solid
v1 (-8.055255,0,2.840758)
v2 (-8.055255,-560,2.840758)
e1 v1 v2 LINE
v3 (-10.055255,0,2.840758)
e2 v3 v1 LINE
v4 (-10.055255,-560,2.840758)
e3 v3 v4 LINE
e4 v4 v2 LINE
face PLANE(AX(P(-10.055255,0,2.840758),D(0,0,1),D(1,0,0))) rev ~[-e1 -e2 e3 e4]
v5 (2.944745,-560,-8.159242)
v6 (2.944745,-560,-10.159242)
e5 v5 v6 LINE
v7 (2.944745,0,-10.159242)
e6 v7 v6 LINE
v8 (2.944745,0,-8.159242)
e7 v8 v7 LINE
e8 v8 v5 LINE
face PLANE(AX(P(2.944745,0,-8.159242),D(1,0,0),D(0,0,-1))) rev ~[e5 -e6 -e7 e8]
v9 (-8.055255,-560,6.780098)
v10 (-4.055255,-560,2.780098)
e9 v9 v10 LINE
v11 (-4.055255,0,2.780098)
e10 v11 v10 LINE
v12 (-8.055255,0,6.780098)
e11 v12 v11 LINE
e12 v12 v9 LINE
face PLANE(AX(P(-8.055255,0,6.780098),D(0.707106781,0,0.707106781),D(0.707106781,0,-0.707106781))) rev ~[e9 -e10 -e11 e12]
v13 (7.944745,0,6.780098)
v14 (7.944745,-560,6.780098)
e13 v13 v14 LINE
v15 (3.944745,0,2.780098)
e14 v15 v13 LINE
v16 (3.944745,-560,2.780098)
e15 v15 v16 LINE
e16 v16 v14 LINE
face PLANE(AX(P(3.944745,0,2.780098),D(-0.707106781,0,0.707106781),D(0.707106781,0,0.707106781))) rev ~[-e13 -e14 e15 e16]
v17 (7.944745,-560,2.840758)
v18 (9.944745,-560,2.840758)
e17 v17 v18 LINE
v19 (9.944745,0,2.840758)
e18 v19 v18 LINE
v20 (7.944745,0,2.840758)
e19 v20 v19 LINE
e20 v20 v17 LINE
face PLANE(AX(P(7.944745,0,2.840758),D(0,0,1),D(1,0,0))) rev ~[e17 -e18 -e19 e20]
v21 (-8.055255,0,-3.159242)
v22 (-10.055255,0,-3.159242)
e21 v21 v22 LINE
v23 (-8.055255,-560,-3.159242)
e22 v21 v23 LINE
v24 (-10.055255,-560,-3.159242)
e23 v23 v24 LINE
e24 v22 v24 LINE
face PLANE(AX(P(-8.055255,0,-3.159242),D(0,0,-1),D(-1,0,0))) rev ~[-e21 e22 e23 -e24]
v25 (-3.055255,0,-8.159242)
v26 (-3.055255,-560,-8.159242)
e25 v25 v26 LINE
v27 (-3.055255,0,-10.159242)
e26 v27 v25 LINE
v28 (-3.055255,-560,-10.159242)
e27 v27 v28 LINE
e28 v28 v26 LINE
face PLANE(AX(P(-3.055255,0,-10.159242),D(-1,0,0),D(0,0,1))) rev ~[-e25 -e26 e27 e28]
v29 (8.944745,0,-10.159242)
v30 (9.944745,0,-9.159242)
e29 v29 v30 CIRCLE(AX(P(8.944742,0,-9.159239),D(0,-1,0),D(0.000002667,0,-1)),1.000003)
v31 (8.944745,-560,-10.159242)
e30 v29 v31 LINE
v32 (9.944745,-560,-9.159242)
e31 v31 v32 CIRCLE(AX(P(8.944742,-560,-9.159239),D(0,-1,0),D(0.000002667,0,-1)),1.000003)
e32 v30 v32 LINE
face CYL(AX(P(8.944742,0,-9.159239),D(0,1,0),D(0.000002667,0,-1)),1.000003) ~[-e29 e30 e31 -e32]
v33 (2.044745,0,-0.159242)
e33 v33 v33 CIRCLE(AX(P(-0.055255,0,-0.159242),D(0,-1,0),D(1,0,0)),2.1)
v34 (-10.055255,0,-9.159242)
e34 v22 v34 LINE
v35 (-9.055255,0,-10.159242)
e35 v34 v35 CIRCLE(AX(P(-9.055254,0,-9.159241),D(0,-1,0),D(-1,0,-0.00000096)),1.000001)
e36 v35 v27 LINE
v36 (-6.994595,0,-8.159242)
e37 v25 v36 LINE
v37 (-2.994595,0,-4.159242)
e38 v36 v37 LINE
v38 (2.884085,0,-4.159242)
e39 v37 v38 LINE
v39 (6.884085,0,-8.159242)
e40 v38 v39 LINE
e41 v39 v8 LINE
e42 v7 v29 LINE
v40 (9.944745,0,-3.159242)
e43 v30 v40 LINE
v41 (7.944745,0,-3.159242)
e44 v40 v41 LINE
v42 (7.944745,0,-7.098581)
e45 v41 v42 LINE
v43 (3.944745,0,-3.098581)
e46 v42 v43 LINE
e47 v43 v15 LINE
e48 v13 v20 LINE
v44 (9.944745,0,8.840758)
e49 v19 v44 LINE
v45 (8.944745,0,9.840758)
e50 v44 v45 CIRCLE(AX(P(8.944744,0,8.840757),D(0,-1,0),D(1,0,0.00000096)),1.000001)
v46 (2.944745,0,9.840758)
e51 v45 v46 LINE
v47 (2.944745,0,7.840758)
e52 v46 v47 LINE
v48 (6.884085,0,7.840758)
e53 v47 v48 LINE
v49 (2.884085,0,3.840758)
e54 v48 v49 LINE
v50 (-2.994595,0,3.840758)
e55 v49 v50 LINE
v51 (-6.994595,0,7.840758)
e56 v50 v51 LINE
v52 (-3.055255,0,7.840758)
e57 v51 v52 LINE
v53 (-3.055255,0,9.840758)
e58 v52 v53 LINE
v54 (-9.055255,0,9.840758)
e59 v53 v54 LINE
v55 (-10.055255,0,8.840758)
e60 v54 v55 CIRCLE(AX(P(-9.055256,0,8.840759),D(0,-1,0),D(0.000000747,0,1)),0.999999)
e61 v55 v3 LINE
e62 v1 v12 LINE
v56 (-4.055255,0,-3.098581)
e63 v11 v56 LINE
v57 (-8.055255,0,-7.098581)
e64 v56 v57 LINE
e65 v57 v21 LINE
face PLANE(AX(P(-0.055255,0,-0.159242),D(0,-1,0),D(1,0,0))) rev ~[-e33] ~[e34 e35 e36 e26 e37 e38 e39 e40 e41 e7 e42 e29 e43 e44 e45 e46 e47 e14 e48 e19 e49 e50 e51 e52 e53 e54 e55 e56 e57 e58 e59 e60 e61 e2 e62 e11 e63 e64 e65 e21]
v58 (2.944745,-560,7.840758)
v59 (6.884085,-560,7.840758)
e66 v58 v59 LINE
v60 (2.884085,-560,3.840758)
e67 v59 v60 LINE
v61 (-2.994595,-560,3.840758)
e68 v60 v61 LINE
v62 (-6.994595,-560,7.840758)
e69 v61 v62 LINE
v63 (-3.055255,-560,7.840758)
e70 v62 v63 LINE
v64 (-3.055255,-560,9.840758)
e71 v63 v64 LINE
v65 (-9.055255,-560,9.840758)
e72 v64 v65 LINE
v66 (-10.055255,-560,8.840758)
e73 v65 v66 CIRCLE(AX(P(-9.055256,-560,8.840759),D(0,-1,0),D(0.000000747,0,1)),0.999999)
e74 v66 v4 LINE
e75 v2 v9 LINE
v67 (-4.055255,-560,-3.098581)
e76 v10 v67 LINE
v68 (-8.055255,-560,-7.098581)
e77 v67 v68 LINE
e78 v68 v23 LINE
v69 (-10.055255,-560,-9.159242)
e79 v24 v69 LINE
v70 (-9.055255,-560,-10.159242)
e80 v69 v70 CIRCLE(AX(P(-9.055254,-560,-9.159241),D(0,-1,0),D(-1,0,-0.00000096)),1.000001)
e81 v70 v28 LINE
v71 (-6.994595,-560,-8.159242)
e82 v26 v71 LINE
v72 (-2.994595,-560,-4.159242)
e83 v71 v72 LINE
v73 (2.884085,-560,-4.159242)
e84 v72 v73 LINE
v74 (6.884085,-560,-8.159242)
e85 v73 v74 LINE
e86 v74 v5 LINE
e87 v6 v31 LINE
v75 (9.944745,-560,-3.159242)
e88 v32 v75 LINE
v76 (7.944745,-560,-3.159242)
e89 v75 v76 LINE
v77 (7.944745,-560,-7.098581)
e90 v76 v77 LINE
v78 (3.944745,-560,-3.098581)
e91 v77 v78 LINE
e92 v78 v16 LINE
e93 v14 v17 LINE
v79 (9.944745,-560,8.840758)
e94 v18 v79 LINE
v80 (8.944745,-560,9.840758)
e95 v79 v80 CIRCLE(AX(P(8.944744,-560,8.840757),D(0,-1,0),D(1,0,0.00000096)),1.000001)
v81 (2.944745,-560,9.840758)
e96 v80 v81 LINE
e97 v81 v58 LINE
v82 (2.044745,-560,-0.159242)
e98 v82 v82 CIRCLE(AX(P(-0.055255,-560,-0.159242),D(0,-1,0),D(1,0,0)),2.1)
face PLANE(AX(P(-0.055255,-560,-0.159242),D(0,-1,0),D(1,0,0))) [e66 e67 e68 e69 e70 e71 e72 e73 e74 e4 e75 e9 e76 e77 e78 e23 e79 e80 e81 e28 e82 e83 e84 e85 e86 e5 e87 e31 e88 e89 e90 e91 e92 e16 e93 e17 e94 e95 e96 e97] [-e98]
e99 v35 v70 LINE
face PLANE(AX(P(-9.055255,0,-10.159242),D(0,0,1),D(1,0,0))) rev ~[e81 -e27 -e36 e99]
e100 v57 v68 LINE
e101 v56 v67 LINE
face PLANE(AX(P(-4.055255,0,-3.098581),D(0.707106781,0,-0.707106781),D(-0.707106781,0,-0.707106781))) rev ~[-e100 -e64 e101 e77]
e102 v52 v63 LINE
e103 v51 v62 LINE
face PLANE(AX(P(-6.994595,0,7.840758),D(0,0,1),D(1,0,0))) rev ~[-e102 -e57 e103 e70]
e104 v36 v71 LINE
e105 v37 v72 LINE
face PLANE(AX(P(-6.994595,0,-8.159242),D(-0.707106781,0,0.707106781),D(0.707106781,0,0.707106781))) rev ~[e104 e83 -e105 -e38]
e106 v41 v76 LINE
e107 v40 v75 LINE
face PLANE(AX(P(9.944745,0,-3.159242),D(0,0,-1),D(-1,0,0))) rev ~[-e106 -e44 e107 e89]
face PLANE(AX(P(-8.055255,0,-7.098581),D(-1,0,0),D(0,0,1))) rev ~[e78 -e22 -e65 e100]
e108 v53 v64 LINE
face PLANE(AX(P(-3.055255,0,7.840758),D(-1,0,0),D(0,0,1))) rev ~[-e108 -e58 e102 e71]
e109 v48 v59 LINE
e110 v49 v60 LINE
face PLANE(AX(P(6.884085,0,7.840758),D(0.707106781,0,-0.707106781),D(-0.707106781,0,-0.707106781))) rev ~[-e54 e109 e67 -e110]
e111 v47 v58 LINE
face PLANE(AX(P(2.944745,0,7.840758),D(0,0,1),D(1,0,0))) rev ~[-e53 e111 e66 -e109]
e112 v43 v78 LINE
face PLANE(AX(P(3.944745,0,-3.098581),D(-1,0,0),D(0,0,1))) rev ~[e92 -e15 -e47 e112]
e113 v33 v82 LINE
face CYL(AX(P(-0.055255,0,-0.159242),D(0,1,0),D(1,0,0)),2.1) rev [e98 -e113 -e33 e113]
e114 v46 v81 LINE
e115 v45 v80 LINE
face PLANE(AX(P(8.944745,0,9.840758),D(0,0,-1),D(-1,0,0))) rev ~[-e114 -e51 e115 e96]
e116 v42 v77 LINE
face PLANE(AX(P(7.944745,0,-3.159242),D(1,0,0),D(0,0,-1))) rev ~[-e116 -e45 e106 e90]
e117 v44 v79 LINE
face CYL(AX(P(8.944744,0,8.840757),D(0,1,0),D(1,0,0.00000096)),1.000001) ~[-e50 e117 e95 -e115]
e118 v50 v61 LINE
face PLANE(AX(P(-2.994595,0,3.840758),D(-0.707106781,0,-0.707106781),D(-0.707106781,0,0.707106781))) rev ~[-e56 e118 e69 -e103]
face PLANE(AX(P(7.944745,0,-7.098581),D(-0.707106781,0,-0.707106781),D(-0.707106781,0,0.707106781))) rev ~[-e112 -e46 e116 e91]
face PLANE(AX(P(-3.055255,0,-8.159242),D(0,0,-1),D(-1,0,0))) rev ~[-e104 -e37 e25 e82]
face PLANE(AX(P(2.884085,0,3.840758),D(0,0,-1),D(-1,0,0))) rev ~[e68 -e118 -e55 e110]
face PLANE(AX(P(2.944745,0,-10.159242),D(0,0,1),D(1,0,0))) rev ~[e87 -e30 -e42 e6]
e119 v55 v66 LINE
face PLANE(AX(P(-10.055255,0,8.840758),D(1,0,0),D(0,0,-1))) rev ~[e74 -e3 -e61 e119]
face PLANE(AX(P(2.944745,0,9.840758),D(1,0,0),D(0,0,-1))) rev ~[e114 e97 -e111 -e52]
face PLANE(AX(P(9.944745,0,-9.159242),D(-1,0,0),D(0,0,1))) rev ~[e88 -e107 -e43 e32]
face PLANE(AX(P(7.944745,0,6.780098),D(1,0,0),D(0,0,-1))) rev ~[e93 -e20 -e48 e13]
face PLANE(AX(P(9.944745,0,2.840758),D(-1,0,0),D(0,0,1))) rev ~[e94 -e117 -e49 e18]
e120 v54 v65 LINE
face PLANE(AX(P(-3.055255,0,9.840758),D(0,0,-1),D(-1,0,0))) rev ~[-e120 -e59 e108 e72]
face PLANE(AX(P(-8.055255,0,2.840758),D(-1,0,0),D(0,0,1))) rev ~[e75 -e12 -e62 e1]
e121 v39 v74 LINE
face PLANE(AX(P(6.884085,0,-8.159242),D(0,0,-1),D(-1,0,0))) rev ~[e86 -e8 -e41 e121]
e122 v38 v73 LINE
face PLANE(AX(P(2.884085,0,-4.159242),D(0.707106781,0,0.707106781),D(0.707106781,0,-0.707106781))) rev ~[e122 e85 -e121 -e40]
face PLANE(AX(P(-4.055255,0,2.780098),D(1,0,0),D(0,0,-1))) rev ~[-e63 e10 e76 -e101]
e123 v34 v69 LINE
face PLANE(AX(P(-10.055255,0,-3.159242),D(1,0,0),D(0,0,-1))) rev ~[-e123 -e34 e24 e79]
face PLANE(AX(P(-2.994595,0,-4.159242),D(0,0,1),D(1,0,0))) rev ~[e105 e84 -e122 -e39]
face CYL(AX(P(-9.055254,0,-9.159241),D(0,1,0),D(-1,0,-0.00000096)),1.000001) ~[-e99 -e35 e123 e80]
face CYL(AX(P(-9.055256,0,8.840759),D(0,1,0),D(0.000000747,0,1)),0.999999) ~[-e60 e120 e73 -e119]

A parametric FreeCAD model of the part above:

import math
import FreeCAD as App
import Part
import Sketcher

V = App.Vector

doc = App.newDocument("Part")
body = doc.addObject("PartDesign::Body", "Body")

# Sketch on XZ plane
sketch1 = doc.addObject("Sketcher::SketchObject", "Sketch")
body.addObject(sketch1)
sketch1.AttachmentSupport = (doc.XZ_Plane, [""])
sketch1.MapMode = "FlatFace"
sketch1.addGeometry(Part.ArcOfCircle(Part.Circle(V(8.9, 8.8, 0), V(0, 0, 1), 1), math.radians(0), math.radians(90)), False)
sketch1.addGeometry(Part.LineSegment(V(8.9, 9.8, 0), V(2.9, 9.8, 0)), False)
sketch1.addGeometry(Part.LineSegment(V(2.9, 9.8, 0), V(2.9, 7.8, 0)), False)
sketch1.addGeometry(Part.LineSegment(V(2.9, 7.8, 0), V(6.9, 7.8, 0)), False)
sketch1.addGeometry(Part.LineSegment(V(6.9, 7.8, 0), V(2.9, 3.8, 0)), False)
sketch1.addGeometry(Part.LineSegment(V(2.9, 3.8, 0), V(-3, 3.8, 0)), False)
sketch1.addGeometry(Part.LineSegment(V(-3, 3.8, 0), V(-7, 7.8, 0)), False)
sketch1.addGeometry(Part.LineSegment(V(-7, 7.8, 0), V(-3.1, 7.8, 0)), False)
sketch1.addGeometry(Part.LineSegment(V(-3.1, 7.8, 0), V(-3.1, 9.8, 0)), False)
sketch1.addGeometry(Part.LineSegment(V(-3.1, 9.8, 0), V(-9.1, 9.8, 0)), False)
sketch1.addGeometry(Part.ArcOfCircle(Part.Circle(V(-9.1, 8.8, 0), V(0, 0, 1), 1), math.radians(90), math.radians(180)), False)
sketch1.addGeometry(Part.LineSegment(V(-10.1, 8.8, 0), V(-10.1, 2.8, 0)), False)
sketch1.addGeometry(Part.LineSegment(V(-10.1, 2.8, 0), V(-8.1, 2.8, 0)), False)
sketch1.addGeometry(Part.LineSegment(V(-8.1, 2.8, 0), V(-8.1, 6.8, 0)), False)
sketch1.addGeometry(Part.LineSegment(V(-8.1, 6.8, 0), V(-4.1, 2.8, 0)), False)
sketch1.addGeometry(Part.LineSegment(V(-4.1, 2.8, 0), V(-4.1, -3.1, 0)), False)
sketch1.addGeometry(Part.LineSegment(V(-4.1, -3.1, 0), V(-8.1, -7.1, 0)), False)
sketch1.addGeometry(Part.LineSegment(V(-8.1, -7.1, 0), V(-8.1, -3.2, 0)), False)
sketch1.addGeometry(Part.LineSegment(V(-8.1, -3.2, 0), V(-10.1, -3.2, 0)), False)
sketch1.addGeometry(Part.LineSegment(V(-10.1, -3.2, 0), V(-10.1, -9.2, 0)), False)
sketch1.addGeometry(Part.ArcOfCircle(Part.Circle(V(-9.1, -9.2, 0), V(0, 0, 1), 1), math.radians(-180), math.radians(-90)), False)
sketch1.addGeometry(Part.LineSegment(V(-9.1, -10.2, 0), V(-3.1, -10.2, 0)), False)
sketch1.addGeometry(Part.LineSegment(V(-3.1, -10.2, 0), V(-3.1, -8.2, 0)), False)
sketch1.addGeometry(Part.LineSegment(V(-3.1, -8.2, 0), V(-7, -8.2, 0)), False)
sketch1.addGeometry(Part.LineSegment(V(-7, -8.2, 0), V(-3, -4.2, 0)), False)
sketch1.addGeometry(Part.LineSegment(V(-3, -4.2, 0), V(2.9, -4.2, 0)), False)
sketch1.addGeometry(Part.LineSegment(V(2.9, -4.2, 0), V(6.9, -8.2, 0)), False)
sketch1.addGeometry(Part.LineSegment(V(6.9, -8.2, 0), V(2.9, -8.2, 0)), False)
sketch1.addGeometry(Part.LineSegment(V(2.9, -8.2, 0), V(2.9, -10.2, 0)), False)
sketch1.addGeometry(Part.LineSegment(V(2.9, -10.2, 0), V(8.9, -10.2, 0)), False)
sketch1.addGeometry(Part.ArcOfCircle(Part.Circle(V(8.9, -9.2, 0), V(0, 0, 1), 1), math.radians(-90), math.radians(0)), False)
sketch1.addGeometry(Part.LineSegment(V(9.9, -9.2, 0), V(9.9, -3.2, 0)), False)
sketch1.addGeometry(Part.LineSegment(V(9.9, -3.2, 0), V(7.9, -3.2, 0)), False)
sketch1.addGeometry(Part.LineSegment(V(7.9, -3.2, 0), V(7.9, -7.1, 0)), False)
sketch1.addGeometry(Part.LineSegment(V(7.9, -7.1, 0), V(3.9, -3.1, 0)), False)
sketch1.addGeometry(Part.LineSegment(V(3.9, -3.1, 0), V(3.9, 2.8, 0)), False)
sketch1.addGeometry(Part.LineSegment(V(3.9, 2.8, 0), V(7.9, 6.8, 0)), False)
sketch1.addGeometry(Part.LineSegment(V(7.9, 6.8, 0), V(7.9, 2.8, 0)), False)
sketch1.addGeometry(Part.LineSegment(V(7.9, 2.8, 0), V(9.9, 2.8, 0)), False)
sketch1.addGeometry(Part.LineSegment(V(9.9, 2.8, 0), V(9.9, 8.8, 0)), False)
sketch1.addGeometry(Part.Circle(V(-0.1, -0.2, 0), V(0, 0, 1), 2.1), False)
sketch1.addConstraint(Sketcher.Constraint("Tangent", 0, 2, 1, 1))
sketch1.addConstraint(Sketcher.Constraint("Coincident", 1, 2, 2, 1))
sketch1.addConstraint(Sketcher.Constraint("Coincident", 2, 2, 3, 1))
sketch1.addConstraint(Sketcher.Constraint("Coincident", 3, 2, 4, 1))
sketch1.addConstraint(Sketcher.Constraint("Coincident", 4, 2, 5, 1))
sketch1.addConstraint(Sketcher.Constraint("Coincident", 5, 2, 6, 1))
sketch1.addConstraint(Sketcher.Constraint("Coincident", 6, 2, 7, 1))
sketch1.addConstraint(Sketcher.Constraint("Coincident", 7, 2, 8, 1))
sketch1.addConstraint(Sketcher.Constraint("Coincident", 8, 2, 9, 1))
sketch1.addConstraint(Sketcher.Constraint("Tangent", 9, 2, 10, 1))
sketch1.addConstraint(Sketcher.Constraint("Tangent", 10, 2, 11, 1))
sketch1.addConstraint(Sketcher.Constraint("Coincident", 11, 2, 12, 1))
sketch1.addConstraint(Sketcher.Constraint("Coincident", 12, 2, 13, 1))
sketch1.addConstraint(Sketcher.Constraint("Coincident", 13, 2, 14, 1))
sketch1.addConstraint(Sketcher.Constraint("Coincident", 14, 2, 15, 1))
sketch1.addConstraint(Sketcher.Constraint("Coincident", 15, 2, 16, 1))
sketch1.addConstraint(Sketcher.Constraint("Coincident", 16, 2, 17, 1))
sketch1.addConstraint(Sketcher.Constraint("Coincident", 17, 2, 18, 1))
sketch1.addConstraint(Sketcher.Constraint("Coincident", 18, 2, 19, 1))
sketch1.addConstraint(Sketcher.Constraint("Tangent", 19, 2, 20, 1))
sketch1.addConstraint(Sketcher.Constraint("Tangent", 20, 2, 21, 1))
sketch1.addConstraint(Sketcher.Constraint("Coincident", 21, 2, 22, 1))
sketch1.addConstraint(Sketcher.Constraint("Coincident", 22, 2, 23, 1))
sketch1.addConstraint(Sketcher.Constraint("Coincident", 23, 2, 24, 1))
sketch1.addConstraint(Sketcher.Constraint("Coincident", 24, 2, 25, 1))
sketch1.addConstraint(Sketcher.Constraint("Coincident", 25, 2, 26, 1))
sketch1.addConstraint(Sketcher.Constraint("Coincident", 26, 2, 27, 1))
sketch1.addConstraint(Sketcher.Constraint("Coincident", 27, 2, 28, 1))
sketch1.addConstraint(Sketcher.Constraint("Coincident", 28, 2, 29, 1))
sketch1.addConstraint(Sketcher.Constraint("Coincident", 29, 2, 30, 1))
sketch1.addConstraint(Sketcher.Constraint("Coincident", 30, 2, 31, 1))
sketch1.addConstraint(Sketcher.Constraint("Coincident", 31, 2, 32, 1))
sketch1.addConstraint(Sketcher.Constraint("Coincident", 32, 2, 33, 1))
sketch1.addConstraint(Sketcher.Constraint("Coincident", 33, 2, 34, 1))
sketch1.addConstraint(Sketcher.Constraint("Coincident", 34, 2, 35, 1))
sketch1.addConstraint(Sketcher.Constraint("Coincident", 35, 2, 36, 1))
sketch1.addConstraint(Sketcher.Constraint("Coincident", 36, 2, 37, 1))
sketch1.addConstraint(Sketcher.Constraint("Coincident", 37, 2, 38, 1))
sketch1.addConstraint(Sketcher.Constraint("Coincident", 38, 2, 39, 1))
sketch1.addConstraint(Sketcher.Constraint("Tangent", 39, 2, 0, 1))
sketch1.addConstraint(Sketcher.Constraint("Horizontal", 1))
sketch1.addConstraint(Sketcher.Constraint("Vertical", 2))
sketch1.addConstraint(Sketcher.Constraint("Horizontal", 3))
sketch1.addConstraint(Sketcher.Constraint("Horizontal", 5))
sketch1.addConstraint(Sketcher.Constraint("Horizontal", 7))
sketch1.addConstraint(Sketcher.Constraint("Vertical", 8))
sketch1.addConstraint(Sketcher.Constraint("Horizontal", 9))
sketch1.addConstraint(Sketcher.Constraint("Vertical", 11))
sketch1.addConstraint(Sketcher.Constraint("Horizontal", 12))
sketch1.addConstraint(Sketcher.Constraint("Vertical", 13))
sketch1.addConstraint(Sketcher.Constraint("Vertical", 15))
sketch1.addConstraint(Sketcher.Constraint("Vertical", 17))
sketch1.addConstraint(Sketcher.Constraint("Horizontal", 18))
sketch1.addConstraint(Sketcher.Constraint("Vertical", 19))
sketch1.addConstraint(Sketcher.Constraint("Horizontal", 21))
sketch1.addConstraint(Sketcher.Constraint("Vertical", 22))
sketch1.addConstraint(Sketcher.Constraint("Horizontal", 23))
sketch1.addConstraint(Sketcher.Constraint("Horizontal", 25))
sketch1.addConstraint(Sketcher.Constraint("Horizontal", 27))
sketch1.addConstraint(Sketcher.Constraint("Vertical", 28))
sketch1.addConstraint(Sketcher.Constraint("Horizontal", 29))
sketch1.addConstraint(Sketcher.Constraint("Vertical", 31))
sketch1.addConstraint(Sketcher.Constraint("Horizontal", 32))
sketch1.addConstraint(Sketcher.Constraint("Vertical", 33))
sketch1.addConstraint(Sketcher.Constraint("Vertical", 35))
sketch1.addConstraint(Sketcher.Constraint("Vertical", 37))
sketch1.addConstraint(Sketcher.Constraint("Horizontal", 38))
sketch1.addConstraint(Sketcher.Constraint("Vertical", 39))
sketch1.addConstraint(Sketcher.Constraint("Equal", 0, 10))
sketch1.addConstraint(Sketcher.Constraint("Equal", 10, 20))
sketch1.addConstraint(Sketcher.Constraint("Equal", 20, 30))
sketch1.addConstraint(Sketcher.Constraint("Perpendicular", 4, 6))
sketch1.addConstraint(Sketcher.Constraint("Parallel", 6, 14))
sketch1.addConstraint(Sketcher.Constraint("Perpendicular", 14, 16))
sketch1.addConstraint(Sketcher.Constraint("Parallel", 16, 24))
sketch1.addConstraint(Sketcher.Constraint("Perpendicular", 24, 26))
sketch1.addConstraint(Sketcher.Constraint("Parallel", 26, 34))
sketch1.addConstraint(Sketcher.Constraint("Perpendicular", 34, 36))
sketch1.addConstraint(Sketcher.Constraint("Horizontal", 0, 3, 10, 3))
sketch1.addConstraint(Sketcher.Constraint("Horizontal", 20, 3, 30, 3))
sketch1.addConstraint(Sketcher.Constraint("Horizontal", 3, 2, 6, 2))
sketch1.addConstraint(Sketcher.Constraint("Horizontal", 23, 2, 26, 2))
sketch1.addConstraint(Sketcher.Constraint("Horizontal", 19, 2, 30, 2))
sketch1.addConstraint(Sketcher.Constraint("Horizontal", 18, 2, 31, 2))
sketch1.addConstraint(Sketcher.Constraint("Horizontal", 16, 2, 33, 2))
sketch1.addConstraint(Sketcher.Constraint("Horizontal", 15, 2, 34, 2))
sketch1.addConstraint(Sketcher.Constraint("Horizontal", 14, 2, 35, 2))
sketch1.addConstraint(Sketcher.Constraint("Horizontal", 13, 2, 36, 2))
sketch1.addConstraint(Sketcher.Constraint("Horizontal", 12, 2, 37, 2))
sketch1.addConstraint(Sketcher.Constraint("Vertical", 10, 3, 20, 3))
sketch1.addConstraint(Sketcher.Constraint("Vertical", 0, 3, 30, 3))
sketch1.addConstraint(Sketcher.Constraint("Vertical", 13, 2, 16, 2))
sketch1.addConstraint(Sketcher.Constraint("Vertical", 8, 2, 21, 2))
sketch1.addConstraint(Sketcher.Constraint("Vertical", 6, 2, 23, 2))
sketch1.addConstraint(Sketcher.Constraint("Vertical", 5, 2, 24, 2))
sketch1.addConstraint(Sketcher.Constraint("Vertical", 4, 2, 25, 2))
sketch1.addConstraint(Sketcher.Constraint("Vertical", 3, 2, 26, 2))
sketch1.addConstraint(Sketcher.Constraint("Vertical", 2, 2, 27, 2))
sketch1.addConstraint(Sketcher.Constraint("Vertical", 0, 2, 29, 2))
sketch1.addConstraint(Sketcher.Constraint("Equal", 3, 7))
sketch1.addConstraint(Sketcher.Constraint("Equal", 1, 9))
sketch1.addConstraint(Sketcher.Constraint("Equal", 18, 32))
sketch1.addConstraint(Sketcher.Constraint("Equal", 38, 2))
sketch1.addConstraint(Sketcher.Constraint("Equal", 29, 11))
sketch1.addConstraint(Sketcher.Constraint("Equal", 27, 13))
sketch1.addConstraint(Sketcher.Constraint("Equal", 25, 15))
sketch1.addConstraint(Sketcher.Constraint("Equal", 13, 17))
sketch1.addConstraint(Sketcher.Constraint("Equal", 11, 19))
sketch1.addConstraint(Sketcher.Constraint("Equal", 8, 22))
sketch1.addConstraint(Sketcher.Constraint("Equal", 6, 14))
sketch1.addConstraint(Sketcher.Constraint("Radius", 0, 1.000001))
sketch1.addConstraint(Sketcher.Constraint("Diameter", 40, 4.2))
sketch1.addConstraint(Sketcher.Constraint("DistanceX", 1, 2, 1, 1, 6.0))
sketch1.addConstraint(Sketcher.Constraint("DistanceX", 12, 1, 12, 2, 2.0))
sketch1.addConstraint(Sketcher.Constraint("DistanceX", 10, 3, 0, 3, 18.0))
sketch1.addConstraint(Sketcher.Constraint("DistanceX", 20, 3, 40, 3, 8.999999))
sketch1.addConstraint(Sketcher.Constraint("DistanceY", 20, 3, 40, 3, 8.999999))
sketch1.addConstraint(Sketcher.Constraint("DistanceY", 4, 2, 2, 2, 4.0))
sketch1.addConstraint(Sketcher.Constraint("DistanceX", 3, 1, 3, 2, 3.93934))
sketch1.addConstraint(Sketcher.Constraint("DistanceY", -1, 1, 14, 2, 2.780098))
sketch1.addConstraint(Sketcher.Constraint("DistanceX", -1, 1, 0, 3, 8.944744))
pad1 = doc.addObject("PartDesign::Pad", "Pad")
body.addObject(pad1)
pad1.Profile = sketch1
pad1.Length = 560

doc.recompute()
